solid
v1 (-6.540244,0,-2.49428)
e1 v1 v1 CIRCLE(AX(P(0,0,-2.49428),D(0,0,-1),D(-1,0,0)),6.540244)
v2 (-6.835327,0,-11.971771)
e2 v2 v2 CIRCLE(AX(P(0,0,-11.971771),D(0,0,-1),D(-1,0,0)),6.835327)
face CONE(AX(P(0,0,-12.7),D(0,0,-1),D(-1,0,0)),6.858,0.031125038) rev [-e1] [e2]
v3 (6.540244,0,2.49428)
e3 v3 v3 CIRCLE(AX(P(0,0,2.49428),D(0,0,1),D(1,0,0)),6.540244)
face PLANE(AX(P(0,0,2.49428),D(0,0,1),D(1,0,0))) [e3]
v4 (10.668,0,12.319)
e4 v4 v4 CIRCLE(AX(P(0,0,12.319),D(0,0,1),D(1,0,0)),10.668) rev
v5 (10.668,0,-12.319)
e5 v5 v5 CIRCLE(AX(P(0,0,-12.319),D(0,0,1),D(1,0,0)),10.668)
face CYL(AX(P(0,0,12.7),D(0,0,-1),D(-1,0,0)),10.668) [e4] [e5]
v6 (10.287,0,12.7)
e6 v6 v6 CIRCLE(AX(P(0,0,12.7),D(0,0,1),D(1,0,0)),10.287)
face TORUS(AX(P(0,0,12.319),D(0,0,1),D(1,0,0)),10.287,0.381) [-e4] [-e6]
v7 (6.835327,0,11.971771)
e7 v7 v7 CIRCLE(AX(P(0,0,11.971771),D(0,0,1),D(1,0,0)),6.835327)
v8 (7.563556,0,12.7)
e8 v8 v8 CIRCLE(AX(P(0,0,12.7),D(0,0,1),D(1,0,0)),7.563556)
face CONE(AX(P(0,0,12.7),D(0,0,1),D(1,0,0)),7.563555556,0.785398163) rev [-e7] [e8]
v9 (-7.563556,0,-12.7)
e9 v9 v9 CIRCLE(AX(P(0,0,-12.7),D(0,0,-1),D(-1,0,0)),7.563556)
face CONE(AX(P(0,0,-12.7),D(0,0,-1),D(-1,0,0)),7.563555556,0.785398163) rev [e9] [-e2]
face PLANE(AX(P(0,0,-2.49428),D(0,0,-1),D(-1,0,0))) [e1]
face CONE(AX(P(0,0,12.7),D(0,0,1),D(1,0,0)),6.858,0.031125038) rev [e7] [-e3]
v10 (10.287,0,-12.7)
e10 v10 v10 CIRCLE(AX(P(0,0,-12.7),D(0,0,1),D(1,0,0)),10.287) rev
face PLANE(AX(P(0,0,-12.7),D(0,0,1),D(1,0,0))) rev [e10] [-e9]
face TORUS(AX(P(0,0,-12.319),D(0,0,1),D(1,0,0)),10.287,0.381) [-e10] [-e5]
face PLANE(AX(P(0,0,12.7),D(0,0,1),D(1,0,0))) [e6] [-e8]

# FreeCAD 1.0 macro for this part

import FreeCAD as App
import Part
import Sketcher
from FreeCAD import Vector
Q = App.Units.Quantity


def edges_at(feature, points):
    """Names of the edges that pass closest to the given points."""
    edges = feature.Shape.Edges
    near = lambda p: min(range(len(edges)), key=lambda i: edges[i].distToShape(Part.Vertex(*p))[0])
    return sorted({f"Edge{near(p) + 1}" for p in points})


def faces_at(feature, points):
    """Names of the faces that lie closest to the given points."""
    faces = feature.Shape.Faces
    near = lambda p: min(range(len(faces)), key=lambda i: faces[i].distToShape(Part.Vertex(*p))[0])
    return sorted({f"Face{near(p) + 1}" for p in points})

doc = App.newDocument("Part")
body = doc.addObject("PartDesign::Body", "Body")

sketch1 = doc.addObject("Sketcher::SketchObject", "Sketch")
body.addObject(sketch1)
sketch1.AttachmentSupport = (doc.XY_Plane, [""])
sketch1.MapMode = "FlatFace"
sketch1.addGeometry(Part.Circle(Vector(0, 0, 0), Vector(0, 0, 1), 10.668), False)
sketch1.addConstraint([
    Sketcher.Constraint("Coincident", 0, 3, -1, 1),
    Sketcher.Constraint("Diameter", 0, Q("0.84 in")),
])
pad1 = doc.addObject("PartDesign::Pad", "Pad")
body.addObject(pad1)
pad1.Profile = sketch1
pad1.Length = Q("1 in")
pad1.Midplane = True
body2 = doc.addObject("PartDesign::Body", "Body001")

sketch2 = doc.addObject("Sketcher::SketchObject", "Sketch001")
body2.addObject(sketch2)
sketch2.AttachmentSupport = (doc.getObject("XY_Plane001"), [""])
sketch2.MapMode = "FlatFace"
sketch2.AttachmentOffset = App.Placement(Vector(0, 0, 0.5 * 25.4), App.Rotation())
sketch2.addGeometry(Part.Circle(Vector(0, 0, 0), Vector(0, 0, 1), 6.858), False)
sketch2.addConstraint([
    Sketcher.Constraint("Coincident", 0, 3, -1, 1),
    Sketcher.Constraint("Diameter", 0, Q("0.54 in")),
])
pad2 = doc.addObject("PartDesign::Pad", "Pad001")
body2.addObject(pad2)
pad2.Profile = sketch2
pad2.Length = Q("0.4018 in")
pad2.Reversed = True
doc.recompute()

datumplane = doc.addObject("PartDesign::Plane", "DatumPlane")
body2.addObject(datumplane)
datumplane.AttachmentSupport = (doc.getObject("XY_Plane001"), [""])
datumplane.MapMode = "FlatFace"
datumplane.AttachmentOffset = App.Placement(Vector(0, 0, 0.5 * 25.4), App.Rotation())
draft = doc.addObject("PartDesign::Draft", "Draft")
body2.addObject(draft)
draft.Base = (pad2, faces_at(pad2, [(-6.858, 0, 7.597)]))
draft.NeutralPlane = (datumplane, [""])
draft.Angle = 1.783333
draft.Reversed = True
doc.recompute()

boolean = doc.addObject("PartDesign::Boolean", "Boolean")
body.addObject(boolean)
boolean.Type = "Cut"
boolean.addObjects([body2])
body3 = doc.addObject("PartDesign::Body", "Body002")

sketch3 = doc.addObject("Sketcher::SketchObject", "Sketch002")
body3.addObject(sketch3)
sketch3.AttachmentSupport = (doc.getObject("XY_Plane002"), [""])
sketch3.MapMode = "FlatFace"
sketch3.AttachmentOffset = App.Placement(Vector(0, 0, 0.5 * 25.4), App.Rotation())
sketch3.addGeometry(Part.Circle(Vector(0, 0, 0), Vector(0, 0, 1), 7.563556), False)
sketch3.addConstraint([
    Sketcher.Constraint("Coincident", 0, 3, -1, 1),
    Sketcher.Constraint("Diameter", 0, Q("15.127111 mm")),
])
pad3 = doc.addObject("PartDesign::Pad", "Pad002")
body3.addObject(pad3)
pad3.Profile = sketch3
pad3.Length = Q("0.125 in")
pad3.Reversed = True
doc.recompute()

datumplane2 = doc.addObject("PartDesign::Plane", "DatumPlane001")
body3.addObject(datumplane2)
datumplane2.AttachmentSupport = (doc.getObject("XY_Plane002"), [""])
datumplane2.MapMode = "FlatFace"
datumplane2.AttachmentOffset = App.Placement(Vector(0, 0, 0.5 * 25.4), App.Rotation())
draft2 = doc.addObject("PartDesign::Draft", "Draft001")
body3.addObject(draft2)
draft2.Base = (pad3, faces_at(pad3, [(-7.564, 0, 11.113)]))
draft2.NeutralPlane = (datumplane2, [""])
draft2.Angle = 45
draft2.Reversed = True
doc.recompute()

boolean2 = doc.addObject("PartDesign::Boolean", "Boolean001")
body.addObject(boolean2)
boolean2.Type = "Cut"
boolean2.addObjects([body3])
body4 = doc.addObject("PartDesign::Body", "Body003")

sketch4 = doc.addObject("Sketcher::SketchObject", "Sketch003")
body4.addObject(sketch4)
sketch4.AttachmentSupport = (doc.getObject("XY_Plane003"), [""])
sketch4.MapMode = "FlatFace"
sketch4.AttachmentOffset = App.Placement(Vector(0, 0, -0.5 * 25.4), App.Rotation())
sketch4.addGeometry(Part.Circle(Vector(0, 0, 0), Vector(0, 0, 1), 6.858), False)
sketch4.addConstraint([
    Sketcher.Constraint("Coincident", 0, 3, -1, 1),
    Sketcher.Constraint("Diameter", 0, Q("0.54 in")),
])
pad4 = doc.addObject("PartDesign::Pad", "Pad003")
body4.addObject(pad4)
pad4.Profile = sketch4
pad4.Length = Q("0.4018 in")
doc.recompute()

datumplane3 = doc.addObject("PartDesign::Plane", "DatumPlane002")
body4.addObject(datumplane3)
datumplane3.AttachmentSupport = (doc.getObject("XY_Plane003"), [""])
datumplane3.MapMode = "FlatFace"
datumplane3.AttachmentOffset = App.Placement(Vector(0, 0, -0.5 * 25.4), App.Rotation())
draft3 = doc.addObject("PartDesign::Draft", "Draft002")
body4.addObject(draft3)
draft3.Base = (pad4, faces_at(pad4, [(6.858, 0, -7.597)]))
draft3.NeutralPlane = (datumplane3, [""])
draft3.Angle = 1.783333
draft3.Reversed = False
doc.recompute()

boolean3 = doc.addObject("PartDesign::Boolean", "Boolean002")
body.addObject(boolean3)
boolean3.Type = "Cut"
boolean3.addObjects([body4])
body5 = doc.addObject("PartDesign::Body", "Body004")

sketch5 = doc.addObject("Sketcher::SketchObject", "Sketch004")
body5.addObject(sketch5)
sketch5.AttachmentSupport = (doc.getObject("XY_Plane004"), [""])
sketch5.MapMode = "FlatFace"
sketch5.AttachmentOffset = App.Placement(Vector(0, 0, -0.5 * 25.4), App.Rotation())
sketch5.addGeometry(Part.Circle(Vector(0, 0, 0), Vector(0, 0, 1), 7.563556), False)
sketch5.addConstraint([
    Sketcher.Constraint("Coincident", 0, 3, -1, 1),
    Sketcher.Constraint("Diameter", 0, Q("15.127111 mm")),
])
pad5 = doc.addObject("PartDesign::Pad", "Pad004")
body5.addObject(pad5)
pad5.Profile = sketch5
pad5.Length = Q("0.125 in")
doc.recompute()

datumplane4 = doc.addObject("PartDesign::Plane", "DatumPlane003")
body5.addObject(datumplane4)
datumplane4.AttachmentSupport = (doc.getObject("XY_Plane004"), [""])
datumplane4.MapMode = "FlatFace"
datumplane4.AttachmentOffset = App.Placement(Vector(0, 0, -0.5 * 25.4), App.Rotation())
draft4 = doc.addObject("PartDesign::Draft", "Draft003")
body5.addObject(draft4)
draft4.Base = (pad5, faces_at(pad5, [(7.564, 0, -11.113)]))
draft4.NeutralPlane = (datumplane4, [""])
draft4.Angle = 45
draft4.Reversed = False
doc.recompute()

boolean4 = doc.addObject("PartDesign::Boolean", "Boolean003")
body.addObject(boolean4)
boolean4.Type = "Cut"
boolean4.addObjects([body5])
doc.recompute()

fillet = doc.addObject("PartDesign::Fillet", "Fillet")
body.addObject(fillet)
fillet.Base = (boolean4, edges_at(boolean4, [(-10.668, 0, -12.7), (-10.668, 0, 12.7)]))
fillet.Radius = Q("0.015 in")

doc.recompute()
